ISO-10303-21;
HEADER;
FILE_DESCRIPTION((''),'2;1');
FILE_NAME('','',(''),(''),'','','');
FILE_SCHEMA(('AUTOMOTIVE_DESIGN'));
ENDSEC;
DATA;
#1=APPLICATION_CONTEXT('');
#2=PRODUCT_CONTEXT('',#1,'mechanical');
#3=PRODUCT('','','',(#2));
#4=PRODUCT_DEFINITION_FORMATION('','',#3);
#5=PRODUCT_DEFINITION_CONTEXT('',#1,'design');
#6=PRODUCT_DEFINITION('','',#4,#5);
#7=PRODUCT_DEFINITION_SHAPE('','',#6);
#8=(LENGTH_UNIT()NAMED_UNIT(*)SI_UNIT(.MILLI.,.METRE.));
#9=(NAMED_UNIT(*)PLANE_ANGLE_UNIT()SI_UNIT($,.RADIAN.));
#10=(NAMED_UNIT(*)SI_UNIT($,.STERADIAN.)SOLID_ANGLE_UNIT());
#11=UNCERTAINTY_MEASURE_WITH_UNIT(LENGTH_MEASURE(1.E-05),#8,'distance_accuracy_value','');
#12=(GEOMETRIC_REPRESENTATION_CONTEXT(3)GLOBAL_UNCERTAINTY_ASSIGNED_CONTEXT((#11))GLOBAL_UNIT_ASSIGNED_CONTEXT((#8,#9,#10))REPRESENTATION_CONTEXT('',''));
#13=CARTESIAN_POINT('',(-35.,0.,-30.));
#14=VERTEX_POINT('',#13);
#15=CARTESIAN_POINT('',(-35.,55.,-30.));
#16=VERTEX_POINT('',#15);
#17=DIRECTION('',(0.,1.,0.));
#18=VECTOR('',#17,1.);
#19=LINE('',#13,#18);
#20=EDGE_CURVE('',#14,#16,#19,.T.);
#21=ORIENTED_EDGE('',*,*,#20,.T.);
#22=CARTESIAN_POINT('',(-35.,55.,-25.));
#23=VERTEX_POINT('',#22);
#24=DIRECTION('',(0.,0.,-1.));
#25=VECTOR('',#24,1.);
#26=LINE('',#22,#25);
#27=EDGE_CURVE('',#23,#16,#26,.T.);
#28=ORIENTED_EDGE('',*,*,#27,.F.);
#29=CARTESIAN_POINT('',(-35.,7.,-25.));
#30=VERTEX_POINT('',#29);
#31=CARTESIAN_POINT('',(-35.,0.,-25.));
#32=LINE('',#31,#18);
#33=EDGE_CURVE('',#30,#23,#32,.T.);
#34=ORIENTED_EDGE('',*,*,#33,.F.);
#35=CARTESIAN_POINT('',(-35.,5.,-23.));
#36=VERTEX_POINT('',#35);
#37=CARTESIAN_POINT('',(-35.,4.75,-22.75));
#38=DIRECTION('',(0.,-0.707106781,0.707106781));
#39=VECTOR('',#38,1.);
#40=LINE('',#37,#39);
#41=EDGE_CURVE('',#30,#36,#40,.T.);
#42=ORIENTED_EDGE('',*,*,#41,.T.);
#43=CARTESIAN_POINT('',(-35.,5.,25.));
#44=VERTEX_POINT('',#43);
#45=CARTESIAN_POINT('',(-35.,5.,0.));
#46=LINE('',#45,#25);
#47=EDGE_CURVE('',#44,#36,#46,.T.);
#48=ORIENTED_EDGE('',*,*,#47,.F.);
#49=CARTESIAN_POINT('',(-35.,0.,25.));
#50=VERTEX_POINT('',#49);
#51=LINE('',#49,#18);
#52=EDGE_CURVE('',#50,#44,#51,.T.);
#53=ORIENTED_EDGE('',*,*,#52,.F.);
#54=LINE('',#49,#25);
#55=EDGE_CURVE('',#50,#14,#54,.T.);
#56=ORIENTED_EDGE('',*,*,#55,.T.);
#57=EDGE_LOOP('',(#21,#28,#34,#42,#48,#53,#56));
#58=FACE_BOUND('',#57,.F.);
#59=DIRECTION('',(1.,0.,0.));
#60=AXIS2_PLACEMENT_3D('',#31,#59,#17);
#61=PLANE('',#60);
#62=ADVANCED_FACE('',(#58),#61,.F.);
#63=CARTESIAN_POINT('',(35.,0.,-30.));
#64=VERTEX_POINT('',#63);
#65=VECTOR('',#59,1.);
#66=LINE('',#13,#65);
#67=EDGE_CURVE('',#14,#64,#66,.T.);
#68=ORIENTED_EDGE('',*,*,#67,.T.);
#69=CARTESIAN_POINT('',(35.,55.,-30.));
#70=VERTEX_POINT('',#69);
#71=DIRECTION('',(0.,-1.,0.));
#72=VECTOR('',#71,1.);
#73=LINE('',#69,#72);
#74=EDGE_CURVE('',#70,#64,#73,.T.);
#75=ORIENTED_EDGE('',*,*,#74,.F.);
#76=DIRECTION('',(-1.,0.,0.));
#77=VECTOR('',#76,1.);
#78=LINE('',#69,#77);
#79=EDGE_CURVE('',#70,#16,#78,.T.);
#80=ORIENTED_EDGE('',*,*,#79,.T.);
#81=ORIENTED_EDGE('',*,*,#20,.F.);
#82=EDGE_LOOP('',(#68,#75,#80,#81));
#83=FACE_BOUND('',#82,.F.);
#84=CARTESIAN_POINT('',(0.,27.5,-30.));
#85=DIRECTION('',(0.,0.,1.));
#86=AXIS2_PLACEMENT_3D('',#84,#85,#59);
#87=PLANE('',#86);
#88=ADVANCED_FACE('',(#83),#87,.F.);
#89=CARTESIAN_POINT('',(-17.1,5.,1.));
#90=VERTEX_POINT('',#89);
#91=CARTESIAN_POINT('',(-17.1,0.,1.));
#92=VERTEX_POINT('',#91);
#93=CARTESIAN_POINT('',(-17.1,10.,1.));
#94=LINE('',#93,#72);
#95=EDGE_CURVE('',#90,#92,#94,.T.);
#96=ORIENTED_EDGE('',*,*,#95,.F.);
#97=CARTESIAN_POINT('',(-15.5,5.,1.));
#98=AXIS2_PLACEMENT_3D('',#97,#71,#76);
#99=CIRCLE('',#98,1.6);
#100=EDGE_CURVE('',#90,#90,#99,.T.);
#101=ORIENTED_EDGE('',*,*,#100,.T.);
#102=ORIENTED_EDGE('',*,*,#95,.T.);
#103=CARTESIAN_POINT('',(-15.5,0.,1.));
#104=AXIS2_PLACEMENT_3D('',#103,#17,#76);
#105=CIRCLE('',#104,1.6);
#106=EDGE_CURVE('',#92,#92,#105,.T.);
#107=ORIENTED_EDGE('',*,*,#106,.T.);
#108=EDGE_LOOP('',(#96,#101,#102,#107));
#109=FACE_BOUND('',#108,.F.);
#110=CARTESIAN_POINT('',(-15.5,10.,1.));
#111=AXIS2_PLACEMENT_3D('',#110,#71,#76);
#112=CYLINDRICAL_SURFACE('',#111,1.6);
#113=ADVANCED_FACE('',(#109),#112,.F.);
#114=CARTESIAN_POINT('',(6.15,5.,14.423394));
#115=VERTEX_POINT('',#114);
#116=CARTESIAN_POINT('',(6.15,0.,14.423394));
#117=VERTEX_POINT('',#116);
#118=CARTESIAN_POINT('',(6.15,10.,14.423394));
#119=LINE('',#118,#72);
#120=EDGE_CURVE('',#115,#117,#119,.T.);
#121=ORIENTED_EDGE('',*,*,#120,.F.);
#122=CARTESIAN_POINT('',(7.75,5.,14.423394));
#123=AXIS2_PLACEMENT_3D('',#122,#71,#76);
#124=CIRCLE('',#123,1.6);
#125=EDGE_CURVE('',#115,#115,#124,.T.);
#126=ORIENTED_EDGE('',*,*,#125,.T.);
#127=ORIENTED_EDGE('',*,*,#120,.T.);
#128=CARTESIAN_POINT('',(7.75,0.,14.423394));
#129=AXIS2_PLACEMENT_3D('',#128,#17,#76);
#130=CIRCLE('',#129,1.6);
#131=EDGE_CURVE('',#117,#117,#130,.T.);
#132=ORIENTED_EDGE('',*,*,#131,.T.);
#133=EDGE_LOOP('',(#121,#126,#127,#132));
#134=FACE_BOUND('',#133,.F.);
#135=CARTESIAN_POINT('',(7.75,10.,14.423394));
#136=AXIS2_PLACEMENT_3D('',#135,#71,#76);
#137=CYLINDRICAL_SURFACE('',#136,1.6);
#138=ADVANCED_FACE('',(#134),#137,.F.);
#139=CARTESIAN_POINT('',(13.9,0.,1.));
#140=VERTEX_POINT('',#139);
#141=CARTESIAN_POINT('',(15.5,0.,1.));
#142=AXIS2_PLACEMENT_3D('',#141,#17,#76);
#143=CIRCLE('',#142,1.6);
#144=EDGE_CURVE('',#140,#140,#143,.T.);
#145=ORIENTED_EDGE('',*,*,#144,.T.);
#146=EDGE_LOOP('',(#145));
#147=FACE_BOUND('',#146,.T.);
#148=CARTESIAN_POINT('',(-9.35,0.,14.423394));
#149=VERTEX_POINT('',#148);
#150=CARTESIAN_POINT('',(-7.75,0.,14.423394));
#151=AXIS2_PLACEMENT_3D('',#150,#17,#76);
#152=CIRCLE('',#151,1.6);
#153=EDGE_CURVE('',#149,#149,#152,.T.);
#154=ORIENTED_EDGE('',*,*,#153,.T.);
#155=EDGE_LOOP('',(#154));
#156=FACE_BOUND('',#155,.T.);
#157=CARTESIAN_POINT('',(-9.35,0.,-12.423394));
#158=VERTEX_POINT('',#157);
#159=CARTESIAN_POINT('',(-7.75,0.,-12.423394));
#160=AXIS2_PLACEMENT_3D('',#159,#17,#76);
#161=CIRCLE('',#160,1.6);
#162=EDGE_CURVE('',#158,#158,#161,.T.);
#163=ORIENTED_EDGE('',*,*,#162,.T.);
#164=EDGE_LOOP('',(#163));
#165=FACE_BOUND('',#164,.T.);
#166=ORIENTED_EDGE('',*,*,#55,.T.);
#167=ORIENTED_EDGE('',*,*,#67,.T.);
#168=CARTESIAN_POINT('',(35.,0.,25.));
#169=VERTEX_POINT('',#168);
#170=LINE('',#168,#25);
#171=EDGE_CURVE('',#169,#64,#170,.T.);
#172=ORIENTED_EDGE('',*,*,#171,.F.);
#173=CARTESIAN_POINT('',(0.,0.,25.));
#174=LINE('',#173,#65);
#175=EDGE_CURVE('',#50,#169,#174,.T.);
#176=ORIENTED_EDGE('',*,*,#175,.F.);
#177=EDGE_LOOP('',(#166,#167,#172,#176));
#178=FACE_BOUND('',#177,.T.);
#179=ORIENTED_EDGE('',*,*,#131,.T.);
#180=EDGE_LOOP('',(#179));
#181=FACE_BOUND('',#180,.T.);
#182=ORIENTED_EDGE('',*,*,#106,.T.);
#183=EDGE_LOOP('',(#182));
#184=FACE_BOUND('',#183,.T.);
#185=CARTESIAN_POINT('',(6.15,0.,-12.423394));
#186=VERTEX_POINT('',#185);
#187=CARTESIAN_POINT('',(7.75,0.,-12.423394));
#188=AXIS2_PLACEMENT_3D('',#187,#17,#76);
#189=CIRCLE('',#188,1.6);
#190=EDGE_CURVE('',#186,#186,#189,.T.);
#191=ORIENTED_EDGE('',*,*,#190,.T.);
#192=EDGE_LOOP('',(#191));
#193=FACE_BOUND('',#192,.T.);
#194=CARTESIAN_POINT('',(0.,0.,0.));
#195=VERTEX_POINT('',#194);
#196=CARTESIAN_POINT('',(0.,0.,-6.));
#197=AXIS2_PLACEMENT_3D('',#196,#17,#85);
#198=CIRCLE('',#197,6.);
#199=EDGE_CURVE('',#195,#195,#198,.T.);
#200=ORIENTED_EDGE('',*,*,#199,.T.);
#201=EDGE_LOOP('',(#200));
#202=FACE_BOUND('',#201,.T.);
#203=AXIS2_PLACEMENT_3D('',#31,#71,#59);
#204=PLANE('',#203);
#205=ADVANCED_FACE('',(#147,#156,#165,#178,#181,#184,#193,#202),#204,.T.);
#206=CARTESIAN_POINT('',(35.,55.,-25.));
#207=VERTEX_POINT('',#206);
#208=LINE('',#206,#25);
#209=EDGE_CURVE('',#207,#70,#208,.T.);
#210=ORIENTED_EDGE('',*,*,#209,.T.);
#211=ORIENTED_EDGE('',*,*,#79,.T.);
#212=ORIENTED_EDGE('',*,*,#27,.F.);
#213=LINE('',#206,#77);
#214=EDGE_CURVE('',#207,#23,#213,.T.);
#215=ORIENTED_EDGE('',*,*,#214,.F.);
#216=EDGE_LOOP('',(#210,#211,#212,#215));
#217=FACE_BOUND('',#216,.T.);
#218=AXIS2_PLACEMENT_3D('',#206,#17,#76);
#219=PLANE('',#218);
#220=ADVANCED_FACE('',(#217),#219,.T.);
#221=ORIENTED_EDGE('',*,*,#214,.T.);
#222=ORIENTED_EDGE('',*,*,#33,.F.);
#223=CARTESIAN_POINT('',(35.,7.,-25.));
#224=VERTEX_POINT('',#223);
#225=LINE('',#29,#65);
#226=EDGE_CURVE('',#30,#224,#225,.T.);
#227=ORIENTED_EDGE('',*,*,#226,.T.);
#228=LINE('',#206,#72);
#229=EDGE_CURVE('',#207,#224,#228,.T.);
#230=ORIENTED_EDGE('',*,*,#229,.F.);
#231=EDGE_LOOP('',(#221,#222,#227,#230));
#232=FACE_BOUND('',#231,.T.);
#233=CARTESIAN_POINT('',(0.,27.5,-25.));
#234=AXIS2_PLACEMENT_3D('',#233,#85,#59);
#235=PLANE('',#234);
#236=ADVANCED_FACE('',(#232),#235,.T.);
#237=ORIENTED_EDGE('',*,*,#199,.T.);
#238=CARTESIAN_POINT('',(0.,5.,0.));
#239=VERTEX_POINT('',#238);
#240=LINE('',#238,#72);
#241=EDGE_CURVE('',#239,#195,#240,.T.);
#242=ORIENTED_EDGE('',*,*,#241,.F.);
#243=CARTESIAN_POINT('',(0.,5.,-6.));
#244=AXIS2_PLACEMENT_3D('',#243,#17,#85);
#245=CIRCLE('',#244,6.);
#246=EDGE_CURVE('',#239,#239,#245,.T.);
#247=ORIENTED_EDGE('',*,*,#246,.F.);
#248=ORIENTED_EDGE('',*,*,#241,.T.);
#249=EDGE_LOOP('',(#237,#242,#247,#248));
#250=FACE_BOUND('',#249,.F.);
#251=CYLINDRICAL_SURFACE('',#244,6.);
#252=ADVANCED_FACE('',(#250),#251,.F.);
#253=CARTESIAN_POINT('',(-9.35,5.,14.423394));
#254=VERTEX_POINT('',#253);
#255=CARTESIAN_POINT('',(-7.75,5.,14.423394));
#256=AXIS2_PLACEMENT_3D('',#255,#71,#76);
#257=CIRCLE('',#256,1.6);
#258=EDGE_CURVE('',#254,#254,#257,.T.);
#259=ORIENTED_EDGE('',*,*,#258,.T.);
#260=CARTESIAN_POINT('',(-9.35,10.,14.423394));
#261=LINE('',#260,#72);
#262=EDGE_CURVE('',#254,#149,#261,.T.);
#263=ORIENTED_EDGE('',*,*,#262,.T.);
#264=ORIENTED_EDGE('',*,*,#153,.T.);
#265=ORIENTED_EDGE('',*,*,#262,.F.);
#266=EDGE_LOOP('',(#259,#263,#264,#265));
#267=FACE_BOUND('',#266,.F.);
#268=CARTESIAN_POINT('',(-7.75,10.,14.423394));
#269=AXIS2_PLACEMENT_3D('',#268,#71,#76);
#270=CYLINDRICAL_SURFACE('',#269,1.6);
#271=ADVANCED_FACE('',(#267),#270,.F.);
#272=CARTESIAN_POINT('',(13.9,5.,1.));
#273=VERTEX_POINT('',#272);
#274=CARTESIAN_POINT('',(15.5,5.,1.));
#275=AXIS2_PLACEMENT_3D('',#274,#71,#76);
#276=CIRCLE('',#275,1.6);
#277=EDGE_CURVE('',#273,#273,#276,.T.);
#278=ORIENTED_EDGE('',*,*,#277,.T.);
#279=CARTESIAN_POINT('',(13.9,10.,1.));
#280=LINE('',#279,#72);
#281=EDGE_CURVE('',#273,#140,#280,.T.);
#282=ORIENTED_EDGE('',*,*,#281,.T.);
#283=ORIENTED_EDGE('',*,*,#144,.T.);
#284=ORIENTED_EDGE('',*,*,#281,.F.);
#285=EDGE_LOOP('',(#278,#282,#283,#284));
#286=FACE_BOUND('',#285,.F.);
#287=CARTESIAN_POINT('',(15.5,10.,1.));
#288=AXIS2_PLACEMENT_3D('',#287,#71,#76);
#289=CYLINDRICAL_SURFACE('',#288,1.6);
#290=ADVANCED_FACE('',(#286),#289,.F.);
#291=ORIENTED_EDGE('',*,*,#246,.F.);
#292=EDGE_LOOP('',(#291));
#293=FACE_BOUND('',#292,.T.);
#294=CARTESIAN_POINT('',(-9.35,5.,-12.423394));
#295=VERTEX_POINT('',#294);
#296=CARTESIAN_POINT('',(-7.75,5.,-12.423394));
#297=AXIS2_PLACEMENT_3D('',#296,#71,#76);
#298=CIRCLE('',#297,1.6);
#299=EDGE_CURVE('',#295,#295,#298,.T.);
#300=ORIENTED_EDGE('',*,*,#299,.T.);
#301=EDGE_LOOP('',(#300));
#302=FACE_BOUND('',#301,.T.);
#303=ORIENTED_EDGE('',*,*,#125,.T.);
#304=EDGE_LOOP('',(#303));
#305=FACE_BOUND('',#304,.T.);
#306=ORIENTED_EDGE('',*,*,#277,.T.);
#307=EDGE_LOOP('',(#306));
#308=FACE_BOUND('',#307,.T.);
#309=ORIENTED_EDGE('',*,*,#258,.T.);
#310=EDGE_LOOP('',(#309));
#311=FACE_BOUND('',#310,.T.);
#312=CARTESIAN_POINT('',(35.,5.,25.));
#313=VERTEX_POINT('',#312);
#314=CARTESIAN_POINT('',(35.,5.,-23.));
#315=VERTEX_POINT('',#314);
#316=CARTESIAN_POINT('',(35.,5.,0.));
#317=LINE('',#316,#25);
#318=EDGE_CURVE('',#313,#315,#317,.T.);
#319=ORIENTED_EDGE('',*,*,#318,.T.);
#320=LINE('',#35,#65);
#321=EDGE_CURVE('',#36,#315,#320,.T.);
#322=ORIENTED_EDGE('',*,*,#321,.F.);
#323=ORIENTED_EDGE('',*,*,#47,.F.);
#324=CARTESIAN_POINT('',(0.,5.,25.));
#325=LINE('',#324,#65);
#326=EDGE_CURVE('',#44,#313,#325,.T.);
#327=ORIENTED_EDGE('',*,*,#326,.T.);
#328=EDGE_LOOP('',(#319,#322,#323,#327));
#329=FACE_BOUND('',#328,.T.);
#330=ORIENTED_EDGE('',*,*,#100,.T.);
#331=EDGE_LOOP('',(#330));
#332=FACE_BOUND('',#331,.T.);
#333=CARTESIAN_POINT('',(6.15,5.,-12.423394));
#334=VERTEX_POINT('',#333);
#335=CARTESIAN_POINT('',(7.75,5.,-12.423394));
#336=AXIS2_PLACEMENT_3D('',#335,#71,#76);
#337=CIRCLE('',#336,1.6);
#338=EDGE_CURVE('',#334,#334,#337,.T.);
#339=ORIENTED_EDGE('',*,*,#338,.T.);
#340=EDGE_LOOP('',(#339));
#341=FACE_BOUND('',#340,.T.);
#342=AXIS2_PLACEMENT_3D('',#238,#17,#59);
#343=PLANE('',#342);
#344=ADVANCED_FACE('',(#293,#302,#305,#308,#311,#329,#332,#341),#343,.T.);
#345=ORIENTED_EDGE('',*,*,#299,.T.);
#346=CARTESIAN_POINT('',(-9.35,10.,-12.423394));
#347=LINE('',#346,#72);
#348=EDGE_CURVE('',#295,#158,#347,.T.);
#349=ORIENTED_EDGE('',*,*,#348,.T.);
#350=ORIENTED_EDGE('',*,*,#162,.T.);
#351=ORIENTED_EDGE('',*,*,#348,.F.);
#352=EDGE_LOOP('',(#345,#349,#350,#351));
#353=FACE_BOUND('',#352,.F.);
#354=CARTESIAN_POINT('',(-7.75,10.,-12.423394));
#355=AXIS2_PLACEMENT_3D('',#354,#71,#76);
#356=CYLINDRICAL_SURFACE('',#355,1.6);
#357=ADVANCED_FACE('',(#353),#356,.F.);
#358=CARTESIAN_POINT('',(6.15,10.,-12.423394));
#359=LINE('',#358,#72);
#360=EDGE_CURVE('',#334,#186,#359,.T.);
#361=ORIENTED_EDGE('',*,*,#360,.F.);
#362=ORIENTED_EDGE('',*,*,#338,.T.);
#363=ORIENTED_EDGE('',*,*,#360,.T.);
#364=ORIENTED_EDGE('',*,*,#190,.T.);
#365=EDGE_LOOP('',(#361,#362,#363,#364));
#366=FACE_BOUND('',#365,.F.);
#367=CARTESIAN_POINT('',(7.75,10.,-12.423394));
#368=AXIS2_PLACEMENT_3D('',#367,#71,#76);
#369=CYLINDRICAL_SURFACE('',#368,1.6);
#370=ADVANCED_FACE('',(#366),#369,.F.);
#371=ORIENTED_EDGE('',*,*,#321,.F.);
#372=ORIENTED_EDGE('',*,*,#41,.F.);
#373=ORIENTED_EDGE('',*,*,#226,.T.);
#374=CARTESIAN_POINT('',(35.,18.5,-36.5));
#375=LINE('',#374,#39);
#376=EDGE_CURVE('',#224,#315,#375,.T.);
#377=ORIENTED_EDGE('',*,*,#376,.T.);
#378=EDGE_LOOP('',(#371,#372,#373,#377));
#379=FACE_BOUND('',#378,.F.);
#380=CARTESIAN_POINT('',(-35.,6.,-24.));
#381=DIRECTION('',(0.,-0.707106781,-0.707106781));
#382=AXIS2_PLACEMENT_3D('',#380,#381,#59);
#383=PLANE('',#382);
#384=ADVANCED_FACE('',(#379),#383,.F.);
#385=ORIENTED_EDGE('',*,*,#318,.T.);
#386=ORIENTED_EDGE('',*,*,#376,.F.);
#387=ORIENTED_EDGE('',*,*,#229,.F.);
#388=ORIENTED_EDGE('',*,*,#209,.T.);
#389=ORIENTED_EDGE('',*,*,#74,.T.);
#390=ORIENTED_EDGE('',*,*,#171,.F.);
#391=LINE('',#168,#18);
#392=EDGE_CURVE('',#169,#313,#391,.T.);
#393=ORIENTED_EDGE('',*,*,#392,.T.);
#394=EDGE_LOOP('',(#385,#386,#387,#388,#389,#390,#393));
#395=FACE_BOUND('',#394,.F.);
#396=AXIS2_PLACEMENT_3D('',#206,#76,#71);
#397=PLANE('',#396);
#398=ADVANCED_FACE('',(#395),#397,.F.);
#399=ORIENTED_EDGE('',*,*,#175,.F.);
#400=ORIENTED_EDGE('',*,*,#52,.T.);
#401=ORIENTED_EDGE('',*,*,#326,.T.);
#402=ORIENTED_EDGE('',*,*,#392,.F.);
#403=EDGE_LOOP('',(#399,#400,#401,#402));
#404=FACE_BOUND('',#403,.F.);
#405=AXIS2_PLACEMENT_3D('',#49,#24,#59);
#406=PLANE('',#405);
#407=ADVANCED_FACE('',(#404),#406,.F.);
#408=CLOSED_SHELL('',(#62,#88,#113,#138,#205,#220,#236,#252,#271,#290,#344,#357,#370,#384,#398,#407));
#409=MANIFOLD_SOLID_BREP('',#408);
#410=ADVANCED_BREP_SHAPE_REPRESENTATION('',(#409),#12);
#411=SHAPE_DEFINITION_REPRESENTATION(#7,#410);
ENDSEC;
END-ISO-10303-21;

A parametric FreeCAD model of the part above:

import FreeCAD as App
import Part
import Sketcher

V = App.Vector
Q = App.Units.Quantity


def edges_at(feature, points):
    """Names of the edges that pass closest to the given points."""
    edges = feature.Shape.Edges
    near = lambda p: min(range(len(edges)), key=lambda i: edges[i].distToShape(Part.Vertex(*p))[0])
    return sorted({f"Edge{near(p) + 1}" for p in points})


def add_polygon(sketch, points):
    """Adds a closed chain of lines whose ends are joined by coincident constraints."""
    first, n = sketch.GeometryCount, len(points)
    for a, b in zip(points, points[1:] + points[:1]):
        sketch.addGeometry(Part.LineSegment(App.Vector(*a, 0), App.Vector(*b, 0)), False)
    for i in range(n):
        sketch.addConstraint(Sketcher.Constraint("Coincident", first + i, 2, first + (i + 1) % n, 1))

doc = App.newDocument("Part")
body = doc.addObject("PartDesign::Body", "Body")

# Sketch on XZ plane
sketch1 = body.newObject("Sketcher::SketchObject", "Sketch")
sketch1.AttachmentSupport = (doc.getObject("XZ_Plane"), [""])
sketch1.MapMode = "FlatFace"
add_polygon(sketch1, [(-35, -25), (-35, 25), (35, 25), (35, -25)])  # lines 0-3
sketch1.addConstraint([
    Sketcher.Constraint("Vertical", 0),
    Sketcher.Constraint("Horizontal", 1),
    Sketcher.Constraint("Vertical", 2),
    Sketcher.Constraint("Horizontal", 3),
    Sketcher.Constraint("Symmetric", 0, 2, 2, 2, -1, 1),
    Sketcher.Constraint("DistanceX", 1, 1, 1, 2, Q("70 mm")),
    Sketcher.Constraint("DistanceY", 0, 1, 0, 2, Q("50 mm")),
])
pad1 = body.newObject("PartDesign::Pad", "Pad")
pad1.Profile = sketch1
pad1.Length = 5
pad1.Reversed = True

# Sketch on XZ plane
sketch2 = body.newObject("Sketcher::SketchObject", "Sketch001")
sketch2.AttachmentSupport = (doc.getObject("XZ_Plane"), [""])
sketch2.MapMode = "FlatFace"
sketch2.AttachmentOffset = App.Placement(V(0, 0, -5), App.Rotation())
sketch2.addGeometry([
    Part.Circle(V(-7.8, 14.4, 0), V(0, 0, 1), 1.6),  # 0
    Part.Circle(V(7.8, 14.4, 0), V(0, 0, 1), 1.6),  # 1
    Part.Circle(V(15.5, 1, 0), V(0, 0, 1), 1.6),  # 2
    Part.Circle(V(7.8, -12.4, 0), V(0, 0, 1), 1.6),  # 3
    Part.Circle(V(-7.8, -12.4, 0), V(0, 0, 1), 1.6),  # 4
    Part.Circle(V(-15.5, 1, 0), V(0, 0, 1), 1.6),  # 5
], False)
sketch2.addConstraint([
    Sketcher.Constraint("Equal", 0, 1),
    Sketcher.Constraint("Equal", 1, 2),
    Sketcher.Constraint("Equal", 2, 3),
    Sketcher.Constraint("Equal", 3, 4),
    Sketcher.Constraint("Equal", 4, 5),
    Sketcher.Constraint("Symmetric", 0, 3, 1, 3, -2),
    Sketcher.Constraint("Symmetric", 3, 3, 4, 3, -2),
    Sketcher.Constraint("Symmetric", 2, 3, 5, 3, -2),
    Sketcher.Constraint("Vertical", 1, 3, 3, 3),
    Sketcher.Constraint("Diameter", 0, Q("3.2 mm")),
    Sketcher.Constraint("DistanceY", -1, 1, 2, 3, Q("1 mm")),
    Sketcher.Constraint("DistanceX", 5, 3, 2, 3, Q("31 mm")),
    Sketcher.Constraint("DistanceX", 0, 3, 1, 3, Q("15.5 mm")),
    Sketcher.Constraint("DistanceY", -1, 1, 0, 3, Q("14.423394 mm")),
    Sketcher.Constraint("DistanceY", 3, 3, -1, 1, Q("12.423394 mm")),
])
doc.recompute()
hole = body.newObject("PartDesign::Hole", "Hole")
hole.Profile = sketch2
hole.ThreadType = "None"
hole.Diameter = 3.2
hole.DepthType = "Dimension"
hole.Depth = 5
hole.DrillPoint = "Angled"
hole.DrillPointAngle = 118
hole.Reversed = True

# Sketch on XZ plane
sketch3 = body.newObject("Sketcher::SketchObject", "Sketch002")
sketch3.AttachmentSupport = (doc.getObject("XZ_Plane"), [""])
sketch3.MapMode = "FlatFace"
sketch3.AttachmentOffset = App.Placement(V(0, 0, -5), App.Rotation())
sketch3.addGeometry(Part.Circle(V(0, -6, 0), V(0, 0, 1), 6), False)
sketch3.addConstraint([
    Sketcher.Constraint("PointOnObject", 0, 3, -2),
    Sketcher.Constraint("Diameter", 0, Q("12 mm")),
    Sketcher.Constraint("DistanceY", 0, 3, -1, 1, Q("6 mm")),
])
pocket1 = body.newObject("PartDesign::Pocket", "Pocket")
pocket1.Profile = sketch3
pocket1.Type = "UpToFirst"
pocket1.Reversed = True

# Sketch on XY plane
sketch4 = body.newObject("Sketcher::SketchObject", "Sketch003")
sketch4.AttachmentSupport = (doc.getObject("XY_Plane"), [""])
sketch4.MapMode = "FlatFace"
sketch4.AttachmentOffset = App.Placement(V(0, 0, -25), App.Rotation())
add_polygon(sketch4, [(35, 55), (35, 0), (-35, 0), (-35, 55)])  # lines 0-3
sketch4.addConstraint([
    Sketcher.Constraint("Vertical", 0),
    Sketcher.Constraint("Horizontal", 1),
    Sketcher.Constraint("Vertical", 2),
    Sketcher.Constraint("Horizontal", 3),
    Sketcher.Constraint("Symmetric", 0, 2, 1, 2, -1, 1),
    Sketcher.Constraint("DistanceX", 1, 2, 1, 1, Q("70 mm")),
    Sketcher.Constraint("DistanceY", 0, 2, 0, 1, Q("55 mm")),
])
pad2 = body.newObject("PartDesign::Pad", "Pad001")
pad2.Profile = sketch4
pad2.Length = 5
pad2.Reversed = True
doc.recompute()

chamfer = body.newObject("PartDesign::Chamfer", "Chamfer")
chamfer.Base = (pad2, edges_at(pad2, [(0, 5, -25)]))
chamfer.Size = 2

doc.recompute()
